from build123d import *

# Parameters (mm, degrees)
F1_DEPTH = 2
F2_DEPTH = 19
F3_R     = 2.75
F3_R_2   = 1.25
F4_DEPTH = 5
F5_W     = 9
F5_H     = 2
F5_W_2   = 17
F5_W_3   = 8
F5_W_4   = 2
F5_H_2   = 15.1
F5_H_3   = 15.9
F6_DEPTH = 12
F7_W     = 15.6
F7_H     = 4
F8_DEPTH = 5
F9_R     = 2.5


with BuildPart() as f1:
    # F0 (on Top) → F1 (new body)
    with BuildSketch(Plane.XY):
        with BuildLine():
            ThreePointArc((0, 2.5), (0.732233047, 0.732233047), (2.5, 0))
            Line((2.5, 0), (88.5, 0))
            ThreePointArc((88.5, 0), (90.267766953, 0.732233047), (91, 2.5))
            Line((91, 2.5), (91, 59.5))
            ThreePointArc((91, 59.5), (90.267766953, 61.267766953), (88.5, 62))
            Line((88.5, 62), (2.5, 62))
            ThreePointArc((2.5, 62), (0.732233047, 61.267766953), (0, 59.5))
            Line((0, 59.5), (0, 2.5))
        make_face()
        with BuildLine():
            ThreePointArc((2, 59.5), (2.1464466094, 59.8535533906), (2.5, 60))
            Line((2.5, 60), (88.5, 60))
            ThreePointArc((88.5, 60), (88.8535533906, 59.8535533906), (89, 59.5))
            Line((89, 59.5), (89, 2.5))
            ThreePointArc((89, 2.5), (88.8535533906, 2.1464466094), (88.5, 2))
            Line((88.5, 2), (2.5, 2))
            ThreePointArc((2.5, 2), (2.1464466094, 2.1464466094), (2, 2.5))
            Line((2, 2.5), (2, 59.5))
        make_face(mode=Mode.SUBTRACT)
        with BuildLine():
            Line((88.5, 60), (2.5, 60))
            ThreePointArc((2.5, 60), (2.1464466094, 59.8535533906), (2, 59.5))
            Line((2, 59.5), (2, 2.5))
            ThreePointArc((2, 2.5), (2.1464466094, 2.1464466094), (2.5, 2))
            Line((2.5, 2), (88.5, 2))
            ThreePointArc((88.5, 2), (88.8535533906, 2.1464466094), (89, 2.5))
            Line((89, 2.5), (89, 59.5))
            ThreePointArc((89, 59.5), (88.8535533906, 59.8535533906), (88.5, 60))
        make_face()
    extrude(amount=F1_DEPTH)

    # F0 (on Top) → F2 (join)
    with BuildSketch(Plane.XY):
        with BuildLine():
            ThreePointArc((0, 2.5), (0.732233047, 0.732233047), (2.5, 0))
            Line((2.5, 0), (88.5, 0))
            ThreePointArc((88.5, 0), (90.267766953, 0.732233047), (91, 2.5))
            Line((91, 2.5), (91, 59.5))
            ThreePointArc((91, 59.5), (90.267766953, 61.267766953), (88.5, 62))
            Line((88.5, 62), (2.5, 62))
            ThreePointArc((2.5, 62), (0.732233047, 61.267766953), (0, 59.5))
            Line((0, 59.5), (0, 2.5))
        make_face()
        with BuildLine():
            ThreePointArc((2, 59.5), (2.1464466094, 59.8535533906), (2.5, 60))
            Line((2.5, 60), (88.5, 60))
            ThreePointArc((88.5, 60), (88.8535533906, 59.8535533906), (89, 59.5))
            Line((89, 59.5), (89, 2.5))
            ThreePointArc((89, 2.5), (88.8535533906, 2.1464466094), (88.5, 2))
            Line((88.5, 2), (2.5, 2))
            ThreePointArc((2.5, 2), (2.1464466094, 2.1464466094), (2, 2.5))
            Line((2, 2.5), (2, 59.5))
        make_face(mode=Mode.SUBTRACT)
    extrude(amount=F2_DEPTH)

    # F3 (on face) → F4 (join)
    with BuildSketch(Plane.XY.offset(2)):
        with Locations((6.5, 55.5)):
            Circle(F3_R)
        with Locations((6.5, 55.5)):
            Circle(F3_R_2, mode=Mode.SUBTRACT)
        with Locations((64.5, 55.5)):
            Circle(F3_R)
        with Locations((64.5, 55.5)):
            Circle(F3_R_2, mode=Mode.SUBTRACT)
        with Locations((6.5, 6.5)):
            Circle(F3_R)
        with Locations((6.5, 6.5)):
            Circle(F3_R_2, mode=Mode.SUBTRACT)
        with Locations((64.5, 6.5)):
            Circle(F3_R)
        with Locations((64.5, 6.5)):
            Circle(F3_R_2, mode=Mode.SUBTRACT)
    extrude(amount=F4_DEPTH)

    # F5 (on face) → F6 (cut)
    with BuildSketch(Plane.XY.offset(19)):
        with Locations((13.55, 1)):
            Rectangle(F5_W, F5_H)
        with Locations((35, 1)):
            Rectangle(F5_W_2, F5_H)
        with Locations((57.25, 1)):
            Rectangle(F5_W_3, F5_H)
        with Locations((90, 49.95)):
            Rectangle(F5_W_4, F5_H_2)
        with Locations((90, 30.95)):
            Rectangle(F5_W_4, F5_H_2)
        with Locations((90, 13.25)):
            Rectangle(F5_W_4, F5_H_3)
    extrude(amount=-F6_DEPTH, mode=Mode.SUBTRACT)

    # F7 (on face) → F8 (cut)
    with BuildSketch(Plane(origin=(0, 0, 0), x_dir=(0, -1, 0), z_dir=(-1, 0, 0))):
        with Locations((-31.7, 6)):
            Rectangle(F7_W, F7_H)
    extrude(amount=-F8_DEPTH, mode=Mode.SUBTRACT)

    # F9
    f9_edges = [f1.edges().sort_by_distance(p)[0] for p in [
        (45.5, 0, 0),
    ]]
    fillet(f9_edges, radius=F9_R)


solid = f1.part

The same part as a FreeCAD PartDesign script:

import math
import FreeCAD as App
import Part
import Sketcher

V = App.Vector


def edges_at(feature, points):
    """Names of the edges that pass closest to the given points."""
    edges = feature.Shape.Edges
    near = lambda p: min(range(len(edges)), key=lambda i: edges[i].distToShape(Part.Vertex(*p))[0])
    return sorted({f"Edge{near(p) + 1}" for p in points})

doc = App.newDocument("Part")
body = doc.addObject("PartDesign::Body", "Body")

# Sketch on XY plane
sketch1 = doc.addObject("Sketcher::SketchObject", "Sketch")
body.addObject(sketch1)
sketch1.AttachmentSupport = (doc.XY_Plane, [""])
sketch1.MapMode = "FlatFace"
sketch1.addGeometry([
    Part.ArcOfCircle(Part.Circle(V(2.5, 2.5, 0), V(0, 0, 1), 2.5), math.radians(180), math.radians(270)),  # 0
    Part.LineSegment(V(2.5, 0, 0), V(88.5, 0, 0)),  # 1
    Part.ArcOfCircle(Part.Circle(V(88.5, 2.5, 0), V(0, 0, 1), 2.5), math.radians(-90), math.radians(0)),  # 2
    Part.LineSegment(V(91, 2.5, 0), V(91, 59.5, 0)),  # 3
    Part.ArcOfCircle(Part.Circle(V(88.5, 59.5, 0), V(0, 0, 1), 2.5), math.radians(0), math.radians(90)),  # 4
    Part.LineSegment(V(88.5, 62, 0), V(2.5, 62, 0)),  # 5
    Part.ArcOfCircle(Part.Circle(V(2.5, 59.5, 0), V(0, 0, 1), 2.5), math.radians(90), math.radians(180)),  # 6
    Part.LineSegment(V(0, 59.5, 0), V(0, 2.5, 0)),  # 7
], False)
sketch1.addConstraint([
    Sketcher.Constraint("Tangent", 0, 2, 1, 1),
    Sketcher.Constraint("Tangent", 1, 2, 2, 1),
    Sketcher.Constraint("Tangent", 2, 2, 3, 1),
    Sketcher.Constraint("Tangent", 3, 2, 4, 1),
    Sketcher.Constraint("Tangent", 4, 2, 5, 1),
    Sketcher.Constraint("Tangent", 5, 2, 6, 1),
    Sketcher.Constraint("Tangent", 6, 2, 7, 1),
    Sketcher.Constraint("Tangent", 7, 2, 0, 1),
    Sketcher.Constraint("Horizontal", 1),
    Sketcher.Constraint("Vertical", 3),
    Sketcher.Constraint("Horizontal", 5),
    Sketcher.Constraint("Vertical", 7),
    Sketcher.Constraint("Equal", 0, 2),
    Sketcher.Constraint("Equal", 2, 4),
    Sketcher.Constraint("Equal", 4, 6),
    Sketcher.Constraint("PointOnObject", 0, 2, -1),
    Sketcher.Constraint("PointOnObject", 6, 2, -2),
    Sketcher.Constraint("Radius", 0, 2.5),
    Sketcher.Constraint("DistanceX", 1, 1, 1, 2, 86.0),
    Sketcher.Constraint("DistanceY", 3, 1, 3, 2, 57.0),
])
pad1 = doc.addObject("PartDesign::Pad", "Pad")
body.addObject(pad1)
pad1.Profile = sketch1
pad1.Length = 2

# Sketch on XY plane
sketch2 = doc.addObject("Sketcher::SketchObject", "Sketch001")
body.addObject(sketch2)
sketch2.AttachmentSupport = (doc.XY_Plane, [""])
sketch2.MapMode = "FlatFace"
sketch2.addGeometry([
    Part.ArcOfCircle(Part.Circle(V(2.5, 2.5, 0), V(0, 0, 1), 2.5), math.radians(180), math.radians(270)),  # 0
    Part.LineSegment(V(2.5, 0, 0), V(88.5, 0, 0)),  # 1
    Part.ArcOfCircle(Part.Circle(V(88.5, 2.5, 0), V(0, 0, 1), 2.5), math.radians(-90), math.radians(0)),  # 2
    Part.LineSegment(V(91, 2.5, 0), V(91, 59.5, 0)),  # 3
    Part.ArcOfCircle(Part.Circle(V(88.5, 59.5, 0), V(0, 0, 1), 2.5), math.radians(0), math.radians(90)),  # 4
    Part.LineSegment(V(88.5, 62, 0), V(2.5, 62, 0)),  # 5
    Part.ArcOfCircle(Part.Circle(V(2.5, 59.5, 0), V(0, 0, 1), 2.5), math.radians(90), math.radians(180)),  # 6
    Part.LineSegment(V(0, 59.5, 0), V(0, 2.5, 0)),  # 7
    Part.LineSegment(V(2, 2.5, 0), V(2, 59.5, 0)),  # 8
    Part.ArcOfCircle(Part.Circle(V(2.5, 59.5, 0), V(0, 0, 1), 0.5), math.radians(90), math.radians(180)),  # 9
    Part.LineSegment(V(2.5, 60, 0), V(88.5, 60, 0)),  # 10
    Part.ArcOfCircle(Part.Circle(V(88.5, 59.5, 0), V(0, 0, 1), 0.5), math.radians(0), math.radians(90)),  # 11
    Part.LineSegment(V(89, 59.5, 0), V(89, 2.5, 0)),  # 12
    Part.ArcOfCircle(Part.Circle(V(88.5, 2.5, 0), V(0, 0, 1), 0.5), math.radians(-90), math.radians(0)),  # 13
    Part.LineSegment(V(88.5, 2, 0), V(2.5, 2, 0)),  # 14
    Part.ArcOfCircle(Part.Circle(V(2.5, 2.5, 0), V(0, 0, 1), 0.5), math.radians(180), math.radians(270)),  # 15
], False)
sketch2.addConstraint([
    Sketcher.Constraint("Tangent", 0, 2, 1, 1),
    Sketcher.Constraint("Tangent", 1, 2, 2, 1),
    Sketcher.Constraint("Tangent", 2, 2, 3, 1),
    Sketcher.Constraint("Tangent", 3, 2, 4, 1),
    Sketcher.Constraint("Tangent", 4, 2, 5, 1),
    Sketcher.Constraint("Tangent", 5, 2, 6, 1),
    Sketcher.Constraint("Tangent", 6, 2, 7, 1),
    Sketcher.Constraint("Tangent", 7, 2, 0, 1),
    Sketcher.Constraint("Tangent", 8, 2, 9, 2),
    Sketcher.Constraint("Tangent", 9, 1, 10, 1),
    Sketcher.Constraint("Tangent", 10, 2, 11, 2),
    Sketcher.Constraint("Tangent", 11, 1, 12, 1),
    Sketcher.Constraint("Tangent", 12, 2, 13, 2),
    Sketcher.Constraint("Tangent", 13, 1, 14, 1),
    Sketcher.Constraint("Tangent", 14, 2, 15, 2),
    Sketcher.Constraint("Tangent", 15, 1, 8, 1),
    Sketcher.Constraint("Horizontal", 1),
    Sketcher.Constraint("Vertical", 3),
    Sketcher.Constraint("Horizontal", 5),
    Sketcher.Constraint("Vertical", 7),
    Sketcher.Constraint("Vertical", 8),
    Sketcher.Constraint("Horizontal", 10),
    Sketcher.Constraint("Vertical", 12),
    Sketcher.Constraint("Horizontal", 14),
    Sketcher.Constraint("Coincident", 9, 3, 6, 3),
    Sketcher.Constraint("Coincident", 11, 3, 4, 3),
    Sketcher.Constraint("Coincident", 13, 3, 2, 3),
    Sketcher.Constraint("Equal", 0, 2),
    Sketcher.Constraint("Equal", 2, 4),
    Sketcher.Constraint("Equal", 4, 6),
    Sketcher.Constraint("Equal", 13, 15),
    Sketcher.Constraint("PointOnObject", 0, 2, -1),
    Sketcher.Constraint("PointOnObject", 6, 2, -2),
    Sketcher.Constraint("Radius", 0, 2.5),
    Sketcher.Constraint("Radius", 9, 0.5),
    Sketcher.Constraint("DistanceX", 1, 1, 1, 2, 86.0),
    Sketcher.Constraint("DistanceY", 3, 1, 3, 2, 57.0),
])
pad2 = doc.addObject("PartDesign::Pad", "Pad001")
body.addObject(pad2)
pad2.Profile = sketch2
pad2.Length = 19

# Sketch on XY plane
sketch3 = doc.addObject("Sketcher::SketchObject", "Sketch002")
body.addObject(sketch3)
sketch3.AttachmentSupport = (doc.XY_Plane, [""])
sketch3.MapMode = "FlatFace"
sketch3.AttachmentOffset = App.Placement(V(0, 0, 2), App.Rotation())
sketch3.addGeometry([
    Part.Circle(V(6.5, 55.5, 0), V(0, 0, 1), 2.75),  # 0
    Part.Circle(V(6.5, 55.5, 0), V(0, 0, 1), 1.25),  # 1
    Part.Circle(V(64.5, 55.5, 0), V(0, 0, 1), 2.75),  # 2
    Part.Circle(V(64.5, 55.5, 0), V(0, 0, 1), 1.25),  # 3
    Part.Circle(V(6.5, 6.5, 0), V(0, 0, 1), 2.75),  # 4
    Part.Circle(V(6.5, 6.5, 0), V(0, 0, 1), 1.25),  # 5
    Part.Circle(V(64.5, 6.5, 0), V(0, 0, 1), 2.75),  # 6
    Part.Circle(V(64.5, 6.5, 0), V(0, 0, 1), 1.25),  # 7
], False)
sketch3.addConstraint([
    Sketcher.Constraint("Coincident", 1, 3, 0, 3),
    Sketcher.Constraint("Coincident", 3, 3, 2, 3),
    Sketcher.Constraint("Coincident", 5, 3, 4, 3),
    Sketcher.Constraint("Coincident", 7, 3, 6, 3),
    Sketcher.Constraint("Equal", 0, 2),
    Sketcher.Constraint("Equal", 1, 3),
    Sketcher.Constraint("Equal", 2, 4),
    Sketcher.Constraint("Equal", 3, 5),
    Sketcher.Constraint("Equal", 4, 6),
    Sketcher.Constraint("Equal", 5, 7),
    Sketcher.Constraint("Horizontal", 1, 3, 2, 3),
    Sketcher.Constraint("Horizontal", 5, 3, 6, 3),
    Sketcher.Constraint("Vertical", 1, 3, 4, 3),
    Sketcher.Constraint("Vertical", 3, 3, 6, 3),
    Sketcher.Constraint("Diameter", 0, 5.5),
    Sketcher.Constraint("Diameter", 1, 2.5),
    Sketcher.Constraint("DistanceX", 0, 3, 2, 3, 58.0),
    Sketcher.Constraint("DistanceY", 4, 3, 0, 3, 49.0),
    Sketcher.Constraint("DistanceX", -1, 1, 0, 3, 6.5),
    Sketcher.Constraint("DistanceY", -1, 1, 0, 3, 55.5),
])
pad3 = doc.addObject("PartDesign::Pad", "Pad002")
body.addObject(pad3)
pad3.Profile = sketch3
pad3.Length = 5

# Sketch on XY plane
sketch4 = doc.addObject("Sketcher::SketchObject", "Sketch003")
body.addObject(sketch4)
sketch4.AttachmentSupport = (doc.XY_Plane, [""])
sketch4.MapMode = "FlatFace"
sketch4.AttachmentOffset = App.Placement(V(0, 0, 19), App.Rotation())
sketch4.addGeometry([
    Part.LineSegment(V(9.05, 2, 0), V(9.05, 0, 0)),  # 0
    Part.LineSegment(V(9.05, 0, 0), V(18.05, 0, 0)),  # 1
    Part.LineSegment(V(18.05, 0, 0), V(18.05, 2, 0)),  # 2
    Part.LineSegment(V(18.05, 2, 0), V(9.05, 2, 0)),  # 3
    Part.LineSegment(V(26.5, 2, 0), V(26.5, 0, 0)),  # 4
    Part.LineSegment(V(26.5, 0, 0), V(43.5, 0, 0)),  # 5
    Part.LineSegment(V(43.5, 0, 0), V(43.5, 2, 0)),  # 6
    Part.LineSegment(V(43.5, 2, 0), V(26.5, 2, 0)),  # 7
    Part.LineSegment(V(53.25, 2, 0), V(53.25, 0, 0)),  # 8
    Part.LineSegment(V(53.25, 0, 0), V(61.25, 0, 0)),  # 9
    Part.LineSegment(V(61.25, 0, 0), V(61.25, 2, 0)),  # 10
    Part.LineSegment(V(61.25, 2, 0), V(53.25, 2, 0)),  # 11
    Part.LineSegment(V(89, 57.5, 0), V(89, 42.4, 0)),  # 12
    Part.LineSegment(V(89, 42.4, 0), V(91, 42.4, 0)),  # 13
    Part.LineSegment(V(91, 42.4, 0), V(91, 57.5, 0)),  # 14
    Part.LineSegment(V(91, 57.5, 0), V(89, 57.5, 0)),  # 15
    Part.LineSegment(V(89, 38.5, 0), V(89, 23.4, 0)),  # 16
    Part.LineSegment(V(89, 23.4, 0), V(91, 23.4, 0)),  # 17
    Part.LineSegment(V(91, 23.4, 0), V(91, 38.5, 0)),  # 18
    Part.LineSegment(V(91, 38.5, 0), V(89, 38.5, 0)),  # 19
    Part.LineSegment(V(89, 21.2, 0), V(89, 5.3, 0)),  # 20
    Part.LineSegment(V(89, 5.3, 0), V(91, 5.3, 0)),  # 21
    Part.LineSegment(V(91, 5.3, 0), V(91, 21.2, 0)),  # 22
    Part.LineSegment(V(91, 21.2, 0), V(89, 21.2, 0)),  # 23
], False)
sketch4.addConstraint([
    Sketcher.Constraint("Coincident", 0, 2, 1, 1),
    Sketcher.Constraint("Coincident", 1, 2, 2, 1),
    Sketcher.Constraint("Coincident", 2, 2, 3, 1),
    Sketcher.Constraint("Coincident", 3, 2, 0, 1),
    Sketcher.Constraint("Coincident", 4, 2, 5, 1),
    Sketcher.Constraint("Coincident", 5, 2, 6, 1),
    Sketcher.Constraint("Coincident", 6, 2, 7, 1),
    Sketcher.Constraint("Coincident", 7, 2, 4, 1),
    Sketcher.Constraint("Coincident", 8, 2, 9, 1),
    Sketcher.Constraint("Coincident", 9, 2, 10, 1),
    Sketcher.Constraint("Coincident", 10, 2, 11, 1),
    Sketcher.Constraint("Coincident", 11, 2, 8, 1),
    Sketcher.Constraint("Coincident", 12, 2, 13, 1),
    Sketcher.Constraint("Coincident", 13, 2, 14, 1),
    Sketcher.Constraint("Coincident", 14, 2, 15, 1),
    Sketcher.Constraint("Coincident", 15, 2, 12, 1),
    Sketcher.Constraint("Coincident", 16, 2, 17, 1),
    Sketcher.Constraint("Coincident", 17, 2, 18, 1),
    Sketcher.Constraint("Coincident", 18, 2, 19, 1),
    Sketcher.Constraint("Coincident", 19, 2, 16, 1),
    Sketcher.Constraint("Coincident", 20, 2, 21, 1),
    Sketcher.Constraint("Coincident", 21, 2, 22, 1),
    Sketcher.Constraint("Coincident", 22, 2, 23, 1),
    Sketcher.Constraint("Coincident", 23, 2, 20, 1),
    Sketcher.Constraint("Vertical", 0),
    Sketcher.Constraint("Horizontal", 1),
    Sketcher.Constraint("Vertical", 2),
    Sketcher.Constraint("Horizontal", 3),
    Sketcher.Constraint("Vertical", 4),
    Sketcher.Constraint("Horizontal", 5),
    Sketcher.Constraint("Vertical", 6),
    Sketcher.Constraint("Horizontal", 7),
    Sketcher.Constraint("Vertical", 8),
    Sketcher.Constraint("Horizontal", 9),
    Sketcher.Constraint("Vertical", 10),
    Sketcher.Constraint("Horizontal", 11),
    Sketcher.Constraint("Vertical", 12),
    Sketcher.Constraint("Horizontal", 13),
    Sketcher.Constraint("Vertical", 14),
    Sketcher.Constraint("Horizontal", 15),
    Sketcher.Constraint("Vertical", 16),
    Sketcher.Constraint("Horizontal", 17),
    Sketcher.Constraint("Vertical", 18),
    Sketcher.Constraint("Horizontal", 19),
    Sketcher.Constraint("Vertical", 20),
    Sketcher.Constraint("Horizontal", 21),
    Sketcher.Constraint("Vertical", 22),
    Sketcher.Constraint("Horizontal", 23),
    Sketcher.Constraint("PointOnObject", 0, 2, -1),
    Sketcher.Constraint("PointOnObject", 4, 2, -1),
    Sketcher.Constraint("PointOnObject", 8, 2, -1),
    Sketcher.Constraint("Horizontal", 3, 2, 6, 2),
    Sketcher.Constraint("Horizontal", 7, 2, 10, 2),
    Sketcher.Constraint("Vertical", 15, 2, 16, 2),
    Sketcher.Constraint("Vertical", 14, 2, 17, 2),
    Sketcher.Constraint("Vertical", 19, 2, 20, 2),
    Sketcher.Constraint("Vertical", 18, 2, 21, 2),
    Sketcher.Constraint("Equal", 23, 0),
    Sketcher.Constraint("Equal", 14, 16),
    Sketcher.Constraint("DistanceX", 1, 1, 1, 2, 9.0),
    Sketcher.Constraint("DistanceX", 5, 1, 5, 2, 17.0),
    Sketcher.Constraint("DistanceX", 9, 1, 9, 2, 8.0),
    Sketcher.Constraint("DistanceX", 13, 1, 13, 2, 2.0),
    Sketcher.Constraint("DistanceY", 12, 2, 12, 1, 15.1),
    Sketcher.Constraint("DistanceY", 20, 2, 20, 1, 15.9),
    Sketcher.Constraint("DistanceX", -1, 1, 12, 2, 89.0),
    Sketcher.Constraint("DistanceY", 16, 2, 12, 2, 19.0),
    Sketcher.Constraint("DistanceX", -1, 1, 4, 2, 26.5),
    Sketcher.Constraint("DistanceY", -1, 1, 12, 2, 42.4),
    Sketcher.Constraint("DistanceY", -1, 1, 20, 2, 5.3),
    Sketcher.Constraint("DistanceX", 1, 2, 8, 2, 35.2),
    Sketcher.Constraint("DistanceX", -1, 1, 0, 2, 9.05),
])
pocket1 = doc.addObject("PartDesign::Pocket", "Pocket")
body.addObject(pocket1)
pocket1.Profile = sketch4
pocket1.Length = 12

# Sketch on YZ plane
sketch5 = doc.addObject("Sketcher::SketchObject", "Sketch004")
body.addObject(sketch5)
sketch5.AttachmentSupport = (doc.YZ_Plane, [""])
sketch5.MapMode = "FlatFace"
sketch5.addGeometry([
    Part.LineSegment(V(39.5, 8, 0), V(39.5, 4, 0)),
    Part.LineSegment(V(39.5, 4, 0), V(23.9, 4, 0)),
    Part.LineSegment(V(23.9, 4, 0), V(23.9, 8, 0)),
    Part.LineSegment(V(23.9, 8, 0), V(39.5, 8, 0)),
], False)
sketch5.addConstraint([
    Sketcher.Constraint("Coincident", 0, 2, 1, 1),
    Sketcher.Constraint("Coincident", 1, 2, 2, 1),
    Sketcher.Constraint("Coincident", 2, 2, 3, 1),
    Sketcher.Constraint("Coincident", 3, 2, 0, 1),
    Sketcher.Constraint("Vertical", 0),
    Sketcher.Constraint("Horizontal", 1),
    Sketcher.Constraint("Vertical", 2),
    Sketcher.Constraint("Horizontal", 3),
    Sketcher.Constraint("DistanceY", 0, 2, 0, 1, 4.0),
    Sketcher.Constraint("DistanceX", 1, 2, 1, 1, 15.6),
    Sketcher.Constraint("DistanceY", -1, 1, 0, 2, 4.0),
    Sketcher.Constraint("DistanceX", -1, 1, 0, 2, 39.5),
])
pocket2 = doc.addObject("PartDesign::Pocket", "Pocket001")
body.addObject(pocket2)
pocket2.Profile = sketch5
pocket2.Length = 5
pocket2.Reversed = True
doc.recompute()

fillet = doc.addObject("PartDesign::Fillet", "Fillet")
body.addObject(fillet)
fillet.Base = (pocket2, edges_at(pocket2, [(45.5, 0, 0)]))
fillet.Radius = 2.5

doc.recompute()
